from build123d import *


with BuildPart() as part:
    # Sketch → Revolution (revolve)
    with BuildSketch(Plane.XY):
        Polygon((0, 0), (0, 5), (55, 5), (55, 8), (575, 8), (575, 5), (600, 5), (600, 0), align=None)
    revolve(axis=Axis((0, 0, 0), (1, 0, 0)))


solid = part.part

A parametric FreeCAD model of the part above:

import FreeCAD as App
import Part
import Sketcher
from FreeCAD import Vector
Q = App.Units.Quantity

doc = App.newDocument("Part")
body = doc.addObject("PartDesign::Body", "Body")

sketch1 = body.newObject("Sketcher::SketchObject", "Sketch")
sketch1.AttachmentSupport = (doc.getObject("XY_Plane"), [""])
sketch1.MapMode = "FlatFace"
sketch1.addGeometry(Part.LineSegment(Vector(0, 5, 0), Vector(0, 0, 0)), False)
sketch1.addGeometry(Part.LineSegment(Vector(0, 0, 0), Vector(600, 0, 0)), False)
sketch1.addGeometry(Part.LineSegment(Vector(600, 0, 0), Vector(600, 5, 0)), False)
sketch1.addGeometry(Part.LineSegment(Vector(600, 5, 0), Vector(575, 5, 0)), False)
sketch1.addGeometry(Part.LineSegment(Vector(575, 5, 0), Vector(575, 8, 0)), False)
sketch1.addGeometry(Part.LineSegment(Vector(575, 8, 0), Vector(55, 8, 0)), False)
sketch1.addGeometry(Part.LineSegment(Vector(55, 8, 0), Vector(55, 5, 0)), False)
sketch1.addGeometry(Part.LineSegment(Vector(55, 5, 0), Vector(0, 5, 0)), False)
sketch1.addConstraint(Sketcher.Constraint("Coincident", 0, 2, 1, 1))
sketch1.addConstraint(Sketcher.Constraint("Coincident", 1, 2, 2, 1))
sketch1.addConstraint(Sketcher.Constraint("Coincident", 2, 2, 3, 1))
sketch1.addConstraint(Sketcher.Constraint("Coincident", 3, 2, 4, 1))
sketch1.addConstraint(Sketcher.Constraint("Coincident", 4, 2, 5, 1))
sketch1.addConstraint(Sketcher.Constraint("Coincident", 5, 2, 6, 1))
sketch1.addConstraint(Sketcher.Constraint("Coincident", 6, 2, 7, 1))
sketch1.addConstraint(Sketcher.Constraint("Coincident", 7, 2, 0, 1))
sketch1.addConstraint(Sketcher.Constraint("Vertical", 0))
sketch1.addConstraint(Sketcher.Constraint("Horizontal", 1))
sketch1.addConstraint(Sketcher.Constraint("Vertical", 2))
sketch1.addConstraint(Sketcher.Constraint("Horizontal", 3))
sketch1.addConstraint(Sketcher.Constraint("Vertical", 4))
sketch1.addConstraint(Sketcher.Constraint("Horizontal", 5))
sketch1.addConstraint(Sketcher.Constraint("Vertical", 6))
sketch1.addConstraint(Sketcher.Constraint("Horizontal", 7))
sketch1.addConstraint(Sketcher.Constraint("Coincident", 0, 2, -1, 1))
sketch1.addConstraint(Sketcher.Constraint("Horizontal", 3, 2, 6, 2))
sketch1.addConstraint(Sketcher.Constraint("DistanceX", 1, 1, 1, 2, Q("600 mm")))
sketch1.addConstraint(Sketcher.Constraint("DistanceX", 3, 2, 3, 1, Q("25 mm")))
sketch1.addConstraint(Sketcher.Constraint("DistanceX", 5, 2, 5, 1, Q("520 mm")))
sketch1.addConstraint(Sketcher.Constraint("DistanceY", 0, 2, 0, 1, Q("5 mm")))
sketch1.addConstraint(Sketcher.Constraint("DistanceY", 4, 1, 4, 2, Q("3 mm")))
revolution = body.newObject("PartDesign::Revolution", "Revolution")
revolution.Profile = sketch1
revolution.ReferenceAxis = (sketch1, ["H_Axis"])
revolution.Angle = 360

doc.recompute()
